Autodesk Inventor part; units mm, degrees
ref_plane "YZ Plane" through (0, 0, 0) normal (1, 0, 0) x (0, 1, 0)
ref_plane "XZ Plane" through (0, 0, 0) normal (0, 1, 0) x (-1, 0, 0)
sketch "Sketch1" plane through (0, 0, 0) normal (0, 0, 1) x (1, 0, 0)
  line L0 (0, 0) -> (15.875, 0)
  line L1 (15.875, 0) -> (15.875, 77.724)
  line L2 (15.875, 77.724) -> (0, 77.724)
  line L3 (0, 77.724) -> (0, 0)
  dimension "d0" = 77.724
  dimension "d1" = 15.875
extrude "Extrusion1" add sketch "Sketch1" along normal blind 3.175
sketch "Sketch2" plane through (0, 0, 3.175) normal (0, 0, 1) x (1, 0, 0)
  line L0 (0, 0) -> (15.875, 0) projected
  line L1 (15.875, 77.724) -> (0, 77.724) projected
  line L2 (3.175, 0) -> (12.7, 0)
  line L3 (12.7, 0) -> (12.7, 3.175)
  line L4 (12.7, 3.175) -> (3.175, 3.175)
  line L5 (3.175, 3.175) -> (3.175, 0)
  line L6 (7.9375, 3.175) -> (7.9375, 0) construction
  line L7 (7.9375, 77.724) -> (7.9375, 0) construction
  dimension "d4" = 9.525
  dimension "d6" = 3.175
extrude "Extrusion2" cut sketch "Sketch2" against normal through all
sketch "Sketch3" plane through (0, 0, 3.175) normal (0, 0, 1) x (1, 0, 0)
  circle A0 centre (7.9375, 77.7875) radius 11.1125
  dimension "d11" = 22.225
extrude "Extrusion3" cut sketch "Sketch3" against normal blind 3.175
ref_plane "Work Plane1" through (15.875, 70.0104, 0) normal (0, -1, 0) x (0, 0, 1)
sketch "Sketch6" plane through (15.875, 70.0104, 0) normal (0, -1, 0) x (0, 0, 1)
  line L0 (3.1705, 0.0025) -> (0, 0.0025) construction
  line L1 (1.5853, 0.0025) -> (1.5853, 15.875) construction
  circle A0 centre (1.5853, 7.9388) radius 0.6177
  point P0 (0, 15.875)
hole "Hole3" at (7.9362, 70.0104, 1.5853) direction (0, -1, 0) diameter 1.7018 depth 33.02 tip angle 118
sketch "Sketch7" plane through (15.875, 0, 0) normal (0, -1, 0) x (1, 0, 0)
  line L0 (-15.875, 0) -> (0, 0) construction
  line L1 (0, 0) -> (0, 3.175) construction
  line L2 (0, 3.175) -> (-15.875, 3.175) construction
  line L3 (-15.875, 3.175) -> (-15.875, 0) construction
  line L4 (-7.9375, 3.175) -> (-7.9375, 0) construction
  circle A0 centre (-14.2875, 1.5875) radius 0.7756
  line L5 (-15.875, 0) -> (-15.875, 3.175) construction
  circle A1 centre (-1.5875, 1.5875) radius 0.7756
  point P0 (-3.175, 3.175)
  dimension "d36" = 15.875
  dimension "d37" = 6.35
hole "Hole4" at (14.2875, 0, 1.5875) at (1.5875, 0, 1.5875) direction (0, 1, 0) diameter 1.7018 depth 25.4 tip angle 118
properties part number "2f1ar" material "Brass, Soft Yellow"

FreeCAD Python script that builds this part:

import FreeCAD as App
import Part
import Sketcher
Q = App.Units.Quantity


def add_polygon(sketch, points):
    """Adds a closed chain of lines whose ends are joined by coincident constraints."""
    first, n = sketch.GeometryCount, len(points)
    for a, b in zip(points, points[1:] + points[:1]):
        sketch.addGeometry(Part.LineSegment(App.Vector(*a, 0), App.Vector(*b, 0)), False)
    for i in range(n):
        sketch.addConstraint(Sketcher.Constraint("Coincident", first + i, 2, first + (i + 1) % n, 1))

doc = App.newDocument("Part")
params = doc.addObject("Spreadsheet::Sheet", "Params")
for row, (alias, value) in enumerate([
    ("sketch1_height", "3.06 in"),
    ("sketch1_width", "0.625 in"),
    ("pad1_length", "0.125 in"),
    ("sketch2_width", "0.375 in"),
    ("sketch2_height", "0.125 in"),
    ("sketch3_diameter", "0.875 in"),
    ("pocket2_length", "0.125 in"),
    ("sketch4_diameter", "0.067 in"),
    ("hole_diameter", "0.067 in"),
    ("hole_depth", "1.3 in"),
    ("sketch5_diameter", "0.067 in"),
    ("hole2_diameter", "0.067 in"),
    ("hole2_depth", "1 in"),
], start=1):
    params.set(f"A{row}", alias)
    params.set(f"B{row}", "=" + value)
    params.setAlias(f"B{row}", alias)

body = doc.addObject("PartDesign::Body", "Body")

# Sketch on XY plane
sketch1 = body.newObject("Sketcher::SketchObject", "Sketch")
sketch1.AttachmentSupport = (doc.getObject("XY_Plane"), [""])
sketch1.MapMode = "FlatFace"
add_polygon(sketch1, [(0, 78), (0, 0), (16, 0), (16, 78)])  # lines 0-3
sketch1.addConstraint([
    Sketcher.Constraint("Vertical", 0),
    Sketcher.Constraint("Horizontal", 1),
    Sketcher.Constraint("Vertical", 2),
    Sketcher.Constraint("Horizontal", 3),
    Sketcher.Constraint("Coincident", 0, 2, -1, 1),
    Sketcher.Constraint("DistanceY", 0, 2, 0, 1, Q("3.06 in")),
    Sketcher.Constraint("DistanceX", 1, 1, 1, 2, Q("0.625 in")),
])
sketch1.setExpression("Constraints[9]", "Params.sketch1_height")
sketch1.setExpression("Constraints[10]", "Params.sketch1_width")
pad1 = body.newObject("PartDesign::Pad", "Pad")
pad1.Profile = sketch1
pad1.setExpression("Length", "Params.pad1_length")

# Sketch on XY plane
sketch2 = body.newObject("Sketcher::SketchObject", "Sketch001")
sketch2.AttachmentSupport = (doc.getObject("XY_Plane"), [""])
sketch2.MapMode = "FlatFace"
sketch2.AttachmentOffset = App.Placement(App.Vector(0, 0, 0.125 * 25.4), App.Rotation())
add_polygon(sketch2, [(3.2, 3.2), (3.2, 0), (12.7, 0), (12.7, 3.2)])  # lines 0-3
sketch2.addConstraint([
    Sketcher.Constraint("Vertical", 0),
    Sketcher.Constraint("Horizontal", 1),
    Sketcher.Constraint("Vertical", 2),
    Sketcher.Constraint("Horizontal", 3),
    Sketcher.Constraint("PointOnObject", 0, 2, -1),
    Sketcher.Constraint("DistanceX", 1, 1, 1, 2, Q("0.375 in")),
    Sketcher.Constraint("DistanceY", 0, 2, 0, 1, Q("0.125 in")),
    Sketcher.Constraint("DistanceX", -1, 1, 0, 2, Q("0.125 in")),
])
sketch2.setExpression("Constraints[9]", "Params.sketch2_width")
sketch2.setExpression("Constraints[10]", "Params.sketch2_height")
pocket1 = body.newObject("PartDesign::Pocket", "Pocket")
pocket1.Profile = sketch2
pocket1.Type = "ThroughAll"

# Sketch on XY plane
sketch3 = body.newObject("Sketcher::SketchObject", "Sketch002")
sketch3.AttachmentSupport = (doc.getObject("XY_Plane"), [""])
sketch3.MapMode = "FlatFace"
sketch3.AttachmentOffset = App.Placement(App.Vector(0, 0, 0.125 * 25.4), App.Rotation())
sketch3.addGeometry(Part.Circle(App.Vector(8, 78, 0), App.Vector(0, 0, 1), 11), False)
sketch3.addConstraint([
    Sketcher.Constraint("Diameter", 0, Q("0.875 in")),
    Sketcher.Constraint("DistanceX", -1, 1, 0, 3, Q("0.3125 in")),
    Sketcher.Constraint("DistanceY", -1, 1, 0, 3, Q("3.0625 in")),
])
sketch3.setExpression("Constraints[0]", "Params.sketch3_diameter")
pocket2 = body.newObject("PartDesign::Pocket", "Pocket001")
pocket2.Profile = sketch3
pocket2.setExpression("Length", "Params.pocket2_length")

# Sketch on XZ plane
sketch4 = body.newObject("Sketcher::SketchObject", "Sketch003")
sketch4.AttachmentSupport = (doc.getObject("XZ_Plane"), [""])
sketch4.MapMode = "FlatFace"
sketch4.AttachmentOffset = App.Placement(App.Vector(0, 0, -70.0104), App.Rotation())
sketch4.addGeometry(Part.Circle(App.Vector(7.9, 1.6, 0), App.Vector(0, 0, 1), 0.9), False)
sketch4.addConstraint([
    Sketcher.Constraint("Diameter", 0, Q("0.067 in")),
    Sketcher.Constraint("DistanceX", -1, 1, 0, 3, 7.9362),
    Sketcher.Constraint("DistanceY", -1, 1, 0, 3, 1.5853),
])
sketch4.setExpression("Constraints[0]", "Params.sketch4_diameter")
doc.recompute()
hole = body.newObject("PartDesign::Hole", "Hole")
hole.Profile = sketch4
hole.ThreadType = "None"
hole.setExpression("Diameter", "Params.hole_diameter")
hole.DepthType = "Dimension"
hole.setExpression("Depth", "Params.hole_depth")
hole.DrillPoint = "Angled"
hole.DrillPointAngle = 118
hole.Reversed = True

# Sketch on XZ plane
sketch5 = body.newObject("Sketcher::SketchObject", "Sketch004")
sketch5.AttachmentSupport = (doc.getObject("XZ_Plane"), [""])
sketch5.MapMode = "FlatFace"
sketch5.addGeometry([
    Part.Circle(App.Vector(14.3, 1.6, 0), App.Vector(0, 0, 1), 0.9),
    Part.Circle(App.Vector(1.6, 1.6, 0), App.Vector(0, 0, 1), 0.9),
], False)
sketch5.addConstraint([
    Sketcher.Constraint("Equal", 0, 1),
    Sketcher.Constraint("Horizontal", 0, 3, 1, 3),
    Sketcher.Constraint("Diameter", 0, Q("0.067 in")),
    Sketcher.Constraint("DistanceX", 1, 3, 0, 3, Q("0.5 in")),
    Sketcher.Constraint("DistanceX", -1, 1, 0, 3, Q("0.5625 in")),
    Sketcher.Constraint("DistanceY", -1, 1, 0, 3, Q("0.0625 in")),
])
sketch5.setExpression("Constraints[2]", "Params.sketch5_diameter")
doc.recompute()
hole2 = body.newObject("PartDesign::Hole", "Hole001")
hole2.Profile = sketch5
hole2.ThreadType = "None"
hole2.setExpression("Diameter", "Params.hole2_diameter")
hole2.DepthType = "Dimension"
hole2.setExpression("Depth", "Params.hole2_depth")
hole2.DrillPoint = "Angled"
hole2.DrillPointAngle = 118

doc.recompute()
